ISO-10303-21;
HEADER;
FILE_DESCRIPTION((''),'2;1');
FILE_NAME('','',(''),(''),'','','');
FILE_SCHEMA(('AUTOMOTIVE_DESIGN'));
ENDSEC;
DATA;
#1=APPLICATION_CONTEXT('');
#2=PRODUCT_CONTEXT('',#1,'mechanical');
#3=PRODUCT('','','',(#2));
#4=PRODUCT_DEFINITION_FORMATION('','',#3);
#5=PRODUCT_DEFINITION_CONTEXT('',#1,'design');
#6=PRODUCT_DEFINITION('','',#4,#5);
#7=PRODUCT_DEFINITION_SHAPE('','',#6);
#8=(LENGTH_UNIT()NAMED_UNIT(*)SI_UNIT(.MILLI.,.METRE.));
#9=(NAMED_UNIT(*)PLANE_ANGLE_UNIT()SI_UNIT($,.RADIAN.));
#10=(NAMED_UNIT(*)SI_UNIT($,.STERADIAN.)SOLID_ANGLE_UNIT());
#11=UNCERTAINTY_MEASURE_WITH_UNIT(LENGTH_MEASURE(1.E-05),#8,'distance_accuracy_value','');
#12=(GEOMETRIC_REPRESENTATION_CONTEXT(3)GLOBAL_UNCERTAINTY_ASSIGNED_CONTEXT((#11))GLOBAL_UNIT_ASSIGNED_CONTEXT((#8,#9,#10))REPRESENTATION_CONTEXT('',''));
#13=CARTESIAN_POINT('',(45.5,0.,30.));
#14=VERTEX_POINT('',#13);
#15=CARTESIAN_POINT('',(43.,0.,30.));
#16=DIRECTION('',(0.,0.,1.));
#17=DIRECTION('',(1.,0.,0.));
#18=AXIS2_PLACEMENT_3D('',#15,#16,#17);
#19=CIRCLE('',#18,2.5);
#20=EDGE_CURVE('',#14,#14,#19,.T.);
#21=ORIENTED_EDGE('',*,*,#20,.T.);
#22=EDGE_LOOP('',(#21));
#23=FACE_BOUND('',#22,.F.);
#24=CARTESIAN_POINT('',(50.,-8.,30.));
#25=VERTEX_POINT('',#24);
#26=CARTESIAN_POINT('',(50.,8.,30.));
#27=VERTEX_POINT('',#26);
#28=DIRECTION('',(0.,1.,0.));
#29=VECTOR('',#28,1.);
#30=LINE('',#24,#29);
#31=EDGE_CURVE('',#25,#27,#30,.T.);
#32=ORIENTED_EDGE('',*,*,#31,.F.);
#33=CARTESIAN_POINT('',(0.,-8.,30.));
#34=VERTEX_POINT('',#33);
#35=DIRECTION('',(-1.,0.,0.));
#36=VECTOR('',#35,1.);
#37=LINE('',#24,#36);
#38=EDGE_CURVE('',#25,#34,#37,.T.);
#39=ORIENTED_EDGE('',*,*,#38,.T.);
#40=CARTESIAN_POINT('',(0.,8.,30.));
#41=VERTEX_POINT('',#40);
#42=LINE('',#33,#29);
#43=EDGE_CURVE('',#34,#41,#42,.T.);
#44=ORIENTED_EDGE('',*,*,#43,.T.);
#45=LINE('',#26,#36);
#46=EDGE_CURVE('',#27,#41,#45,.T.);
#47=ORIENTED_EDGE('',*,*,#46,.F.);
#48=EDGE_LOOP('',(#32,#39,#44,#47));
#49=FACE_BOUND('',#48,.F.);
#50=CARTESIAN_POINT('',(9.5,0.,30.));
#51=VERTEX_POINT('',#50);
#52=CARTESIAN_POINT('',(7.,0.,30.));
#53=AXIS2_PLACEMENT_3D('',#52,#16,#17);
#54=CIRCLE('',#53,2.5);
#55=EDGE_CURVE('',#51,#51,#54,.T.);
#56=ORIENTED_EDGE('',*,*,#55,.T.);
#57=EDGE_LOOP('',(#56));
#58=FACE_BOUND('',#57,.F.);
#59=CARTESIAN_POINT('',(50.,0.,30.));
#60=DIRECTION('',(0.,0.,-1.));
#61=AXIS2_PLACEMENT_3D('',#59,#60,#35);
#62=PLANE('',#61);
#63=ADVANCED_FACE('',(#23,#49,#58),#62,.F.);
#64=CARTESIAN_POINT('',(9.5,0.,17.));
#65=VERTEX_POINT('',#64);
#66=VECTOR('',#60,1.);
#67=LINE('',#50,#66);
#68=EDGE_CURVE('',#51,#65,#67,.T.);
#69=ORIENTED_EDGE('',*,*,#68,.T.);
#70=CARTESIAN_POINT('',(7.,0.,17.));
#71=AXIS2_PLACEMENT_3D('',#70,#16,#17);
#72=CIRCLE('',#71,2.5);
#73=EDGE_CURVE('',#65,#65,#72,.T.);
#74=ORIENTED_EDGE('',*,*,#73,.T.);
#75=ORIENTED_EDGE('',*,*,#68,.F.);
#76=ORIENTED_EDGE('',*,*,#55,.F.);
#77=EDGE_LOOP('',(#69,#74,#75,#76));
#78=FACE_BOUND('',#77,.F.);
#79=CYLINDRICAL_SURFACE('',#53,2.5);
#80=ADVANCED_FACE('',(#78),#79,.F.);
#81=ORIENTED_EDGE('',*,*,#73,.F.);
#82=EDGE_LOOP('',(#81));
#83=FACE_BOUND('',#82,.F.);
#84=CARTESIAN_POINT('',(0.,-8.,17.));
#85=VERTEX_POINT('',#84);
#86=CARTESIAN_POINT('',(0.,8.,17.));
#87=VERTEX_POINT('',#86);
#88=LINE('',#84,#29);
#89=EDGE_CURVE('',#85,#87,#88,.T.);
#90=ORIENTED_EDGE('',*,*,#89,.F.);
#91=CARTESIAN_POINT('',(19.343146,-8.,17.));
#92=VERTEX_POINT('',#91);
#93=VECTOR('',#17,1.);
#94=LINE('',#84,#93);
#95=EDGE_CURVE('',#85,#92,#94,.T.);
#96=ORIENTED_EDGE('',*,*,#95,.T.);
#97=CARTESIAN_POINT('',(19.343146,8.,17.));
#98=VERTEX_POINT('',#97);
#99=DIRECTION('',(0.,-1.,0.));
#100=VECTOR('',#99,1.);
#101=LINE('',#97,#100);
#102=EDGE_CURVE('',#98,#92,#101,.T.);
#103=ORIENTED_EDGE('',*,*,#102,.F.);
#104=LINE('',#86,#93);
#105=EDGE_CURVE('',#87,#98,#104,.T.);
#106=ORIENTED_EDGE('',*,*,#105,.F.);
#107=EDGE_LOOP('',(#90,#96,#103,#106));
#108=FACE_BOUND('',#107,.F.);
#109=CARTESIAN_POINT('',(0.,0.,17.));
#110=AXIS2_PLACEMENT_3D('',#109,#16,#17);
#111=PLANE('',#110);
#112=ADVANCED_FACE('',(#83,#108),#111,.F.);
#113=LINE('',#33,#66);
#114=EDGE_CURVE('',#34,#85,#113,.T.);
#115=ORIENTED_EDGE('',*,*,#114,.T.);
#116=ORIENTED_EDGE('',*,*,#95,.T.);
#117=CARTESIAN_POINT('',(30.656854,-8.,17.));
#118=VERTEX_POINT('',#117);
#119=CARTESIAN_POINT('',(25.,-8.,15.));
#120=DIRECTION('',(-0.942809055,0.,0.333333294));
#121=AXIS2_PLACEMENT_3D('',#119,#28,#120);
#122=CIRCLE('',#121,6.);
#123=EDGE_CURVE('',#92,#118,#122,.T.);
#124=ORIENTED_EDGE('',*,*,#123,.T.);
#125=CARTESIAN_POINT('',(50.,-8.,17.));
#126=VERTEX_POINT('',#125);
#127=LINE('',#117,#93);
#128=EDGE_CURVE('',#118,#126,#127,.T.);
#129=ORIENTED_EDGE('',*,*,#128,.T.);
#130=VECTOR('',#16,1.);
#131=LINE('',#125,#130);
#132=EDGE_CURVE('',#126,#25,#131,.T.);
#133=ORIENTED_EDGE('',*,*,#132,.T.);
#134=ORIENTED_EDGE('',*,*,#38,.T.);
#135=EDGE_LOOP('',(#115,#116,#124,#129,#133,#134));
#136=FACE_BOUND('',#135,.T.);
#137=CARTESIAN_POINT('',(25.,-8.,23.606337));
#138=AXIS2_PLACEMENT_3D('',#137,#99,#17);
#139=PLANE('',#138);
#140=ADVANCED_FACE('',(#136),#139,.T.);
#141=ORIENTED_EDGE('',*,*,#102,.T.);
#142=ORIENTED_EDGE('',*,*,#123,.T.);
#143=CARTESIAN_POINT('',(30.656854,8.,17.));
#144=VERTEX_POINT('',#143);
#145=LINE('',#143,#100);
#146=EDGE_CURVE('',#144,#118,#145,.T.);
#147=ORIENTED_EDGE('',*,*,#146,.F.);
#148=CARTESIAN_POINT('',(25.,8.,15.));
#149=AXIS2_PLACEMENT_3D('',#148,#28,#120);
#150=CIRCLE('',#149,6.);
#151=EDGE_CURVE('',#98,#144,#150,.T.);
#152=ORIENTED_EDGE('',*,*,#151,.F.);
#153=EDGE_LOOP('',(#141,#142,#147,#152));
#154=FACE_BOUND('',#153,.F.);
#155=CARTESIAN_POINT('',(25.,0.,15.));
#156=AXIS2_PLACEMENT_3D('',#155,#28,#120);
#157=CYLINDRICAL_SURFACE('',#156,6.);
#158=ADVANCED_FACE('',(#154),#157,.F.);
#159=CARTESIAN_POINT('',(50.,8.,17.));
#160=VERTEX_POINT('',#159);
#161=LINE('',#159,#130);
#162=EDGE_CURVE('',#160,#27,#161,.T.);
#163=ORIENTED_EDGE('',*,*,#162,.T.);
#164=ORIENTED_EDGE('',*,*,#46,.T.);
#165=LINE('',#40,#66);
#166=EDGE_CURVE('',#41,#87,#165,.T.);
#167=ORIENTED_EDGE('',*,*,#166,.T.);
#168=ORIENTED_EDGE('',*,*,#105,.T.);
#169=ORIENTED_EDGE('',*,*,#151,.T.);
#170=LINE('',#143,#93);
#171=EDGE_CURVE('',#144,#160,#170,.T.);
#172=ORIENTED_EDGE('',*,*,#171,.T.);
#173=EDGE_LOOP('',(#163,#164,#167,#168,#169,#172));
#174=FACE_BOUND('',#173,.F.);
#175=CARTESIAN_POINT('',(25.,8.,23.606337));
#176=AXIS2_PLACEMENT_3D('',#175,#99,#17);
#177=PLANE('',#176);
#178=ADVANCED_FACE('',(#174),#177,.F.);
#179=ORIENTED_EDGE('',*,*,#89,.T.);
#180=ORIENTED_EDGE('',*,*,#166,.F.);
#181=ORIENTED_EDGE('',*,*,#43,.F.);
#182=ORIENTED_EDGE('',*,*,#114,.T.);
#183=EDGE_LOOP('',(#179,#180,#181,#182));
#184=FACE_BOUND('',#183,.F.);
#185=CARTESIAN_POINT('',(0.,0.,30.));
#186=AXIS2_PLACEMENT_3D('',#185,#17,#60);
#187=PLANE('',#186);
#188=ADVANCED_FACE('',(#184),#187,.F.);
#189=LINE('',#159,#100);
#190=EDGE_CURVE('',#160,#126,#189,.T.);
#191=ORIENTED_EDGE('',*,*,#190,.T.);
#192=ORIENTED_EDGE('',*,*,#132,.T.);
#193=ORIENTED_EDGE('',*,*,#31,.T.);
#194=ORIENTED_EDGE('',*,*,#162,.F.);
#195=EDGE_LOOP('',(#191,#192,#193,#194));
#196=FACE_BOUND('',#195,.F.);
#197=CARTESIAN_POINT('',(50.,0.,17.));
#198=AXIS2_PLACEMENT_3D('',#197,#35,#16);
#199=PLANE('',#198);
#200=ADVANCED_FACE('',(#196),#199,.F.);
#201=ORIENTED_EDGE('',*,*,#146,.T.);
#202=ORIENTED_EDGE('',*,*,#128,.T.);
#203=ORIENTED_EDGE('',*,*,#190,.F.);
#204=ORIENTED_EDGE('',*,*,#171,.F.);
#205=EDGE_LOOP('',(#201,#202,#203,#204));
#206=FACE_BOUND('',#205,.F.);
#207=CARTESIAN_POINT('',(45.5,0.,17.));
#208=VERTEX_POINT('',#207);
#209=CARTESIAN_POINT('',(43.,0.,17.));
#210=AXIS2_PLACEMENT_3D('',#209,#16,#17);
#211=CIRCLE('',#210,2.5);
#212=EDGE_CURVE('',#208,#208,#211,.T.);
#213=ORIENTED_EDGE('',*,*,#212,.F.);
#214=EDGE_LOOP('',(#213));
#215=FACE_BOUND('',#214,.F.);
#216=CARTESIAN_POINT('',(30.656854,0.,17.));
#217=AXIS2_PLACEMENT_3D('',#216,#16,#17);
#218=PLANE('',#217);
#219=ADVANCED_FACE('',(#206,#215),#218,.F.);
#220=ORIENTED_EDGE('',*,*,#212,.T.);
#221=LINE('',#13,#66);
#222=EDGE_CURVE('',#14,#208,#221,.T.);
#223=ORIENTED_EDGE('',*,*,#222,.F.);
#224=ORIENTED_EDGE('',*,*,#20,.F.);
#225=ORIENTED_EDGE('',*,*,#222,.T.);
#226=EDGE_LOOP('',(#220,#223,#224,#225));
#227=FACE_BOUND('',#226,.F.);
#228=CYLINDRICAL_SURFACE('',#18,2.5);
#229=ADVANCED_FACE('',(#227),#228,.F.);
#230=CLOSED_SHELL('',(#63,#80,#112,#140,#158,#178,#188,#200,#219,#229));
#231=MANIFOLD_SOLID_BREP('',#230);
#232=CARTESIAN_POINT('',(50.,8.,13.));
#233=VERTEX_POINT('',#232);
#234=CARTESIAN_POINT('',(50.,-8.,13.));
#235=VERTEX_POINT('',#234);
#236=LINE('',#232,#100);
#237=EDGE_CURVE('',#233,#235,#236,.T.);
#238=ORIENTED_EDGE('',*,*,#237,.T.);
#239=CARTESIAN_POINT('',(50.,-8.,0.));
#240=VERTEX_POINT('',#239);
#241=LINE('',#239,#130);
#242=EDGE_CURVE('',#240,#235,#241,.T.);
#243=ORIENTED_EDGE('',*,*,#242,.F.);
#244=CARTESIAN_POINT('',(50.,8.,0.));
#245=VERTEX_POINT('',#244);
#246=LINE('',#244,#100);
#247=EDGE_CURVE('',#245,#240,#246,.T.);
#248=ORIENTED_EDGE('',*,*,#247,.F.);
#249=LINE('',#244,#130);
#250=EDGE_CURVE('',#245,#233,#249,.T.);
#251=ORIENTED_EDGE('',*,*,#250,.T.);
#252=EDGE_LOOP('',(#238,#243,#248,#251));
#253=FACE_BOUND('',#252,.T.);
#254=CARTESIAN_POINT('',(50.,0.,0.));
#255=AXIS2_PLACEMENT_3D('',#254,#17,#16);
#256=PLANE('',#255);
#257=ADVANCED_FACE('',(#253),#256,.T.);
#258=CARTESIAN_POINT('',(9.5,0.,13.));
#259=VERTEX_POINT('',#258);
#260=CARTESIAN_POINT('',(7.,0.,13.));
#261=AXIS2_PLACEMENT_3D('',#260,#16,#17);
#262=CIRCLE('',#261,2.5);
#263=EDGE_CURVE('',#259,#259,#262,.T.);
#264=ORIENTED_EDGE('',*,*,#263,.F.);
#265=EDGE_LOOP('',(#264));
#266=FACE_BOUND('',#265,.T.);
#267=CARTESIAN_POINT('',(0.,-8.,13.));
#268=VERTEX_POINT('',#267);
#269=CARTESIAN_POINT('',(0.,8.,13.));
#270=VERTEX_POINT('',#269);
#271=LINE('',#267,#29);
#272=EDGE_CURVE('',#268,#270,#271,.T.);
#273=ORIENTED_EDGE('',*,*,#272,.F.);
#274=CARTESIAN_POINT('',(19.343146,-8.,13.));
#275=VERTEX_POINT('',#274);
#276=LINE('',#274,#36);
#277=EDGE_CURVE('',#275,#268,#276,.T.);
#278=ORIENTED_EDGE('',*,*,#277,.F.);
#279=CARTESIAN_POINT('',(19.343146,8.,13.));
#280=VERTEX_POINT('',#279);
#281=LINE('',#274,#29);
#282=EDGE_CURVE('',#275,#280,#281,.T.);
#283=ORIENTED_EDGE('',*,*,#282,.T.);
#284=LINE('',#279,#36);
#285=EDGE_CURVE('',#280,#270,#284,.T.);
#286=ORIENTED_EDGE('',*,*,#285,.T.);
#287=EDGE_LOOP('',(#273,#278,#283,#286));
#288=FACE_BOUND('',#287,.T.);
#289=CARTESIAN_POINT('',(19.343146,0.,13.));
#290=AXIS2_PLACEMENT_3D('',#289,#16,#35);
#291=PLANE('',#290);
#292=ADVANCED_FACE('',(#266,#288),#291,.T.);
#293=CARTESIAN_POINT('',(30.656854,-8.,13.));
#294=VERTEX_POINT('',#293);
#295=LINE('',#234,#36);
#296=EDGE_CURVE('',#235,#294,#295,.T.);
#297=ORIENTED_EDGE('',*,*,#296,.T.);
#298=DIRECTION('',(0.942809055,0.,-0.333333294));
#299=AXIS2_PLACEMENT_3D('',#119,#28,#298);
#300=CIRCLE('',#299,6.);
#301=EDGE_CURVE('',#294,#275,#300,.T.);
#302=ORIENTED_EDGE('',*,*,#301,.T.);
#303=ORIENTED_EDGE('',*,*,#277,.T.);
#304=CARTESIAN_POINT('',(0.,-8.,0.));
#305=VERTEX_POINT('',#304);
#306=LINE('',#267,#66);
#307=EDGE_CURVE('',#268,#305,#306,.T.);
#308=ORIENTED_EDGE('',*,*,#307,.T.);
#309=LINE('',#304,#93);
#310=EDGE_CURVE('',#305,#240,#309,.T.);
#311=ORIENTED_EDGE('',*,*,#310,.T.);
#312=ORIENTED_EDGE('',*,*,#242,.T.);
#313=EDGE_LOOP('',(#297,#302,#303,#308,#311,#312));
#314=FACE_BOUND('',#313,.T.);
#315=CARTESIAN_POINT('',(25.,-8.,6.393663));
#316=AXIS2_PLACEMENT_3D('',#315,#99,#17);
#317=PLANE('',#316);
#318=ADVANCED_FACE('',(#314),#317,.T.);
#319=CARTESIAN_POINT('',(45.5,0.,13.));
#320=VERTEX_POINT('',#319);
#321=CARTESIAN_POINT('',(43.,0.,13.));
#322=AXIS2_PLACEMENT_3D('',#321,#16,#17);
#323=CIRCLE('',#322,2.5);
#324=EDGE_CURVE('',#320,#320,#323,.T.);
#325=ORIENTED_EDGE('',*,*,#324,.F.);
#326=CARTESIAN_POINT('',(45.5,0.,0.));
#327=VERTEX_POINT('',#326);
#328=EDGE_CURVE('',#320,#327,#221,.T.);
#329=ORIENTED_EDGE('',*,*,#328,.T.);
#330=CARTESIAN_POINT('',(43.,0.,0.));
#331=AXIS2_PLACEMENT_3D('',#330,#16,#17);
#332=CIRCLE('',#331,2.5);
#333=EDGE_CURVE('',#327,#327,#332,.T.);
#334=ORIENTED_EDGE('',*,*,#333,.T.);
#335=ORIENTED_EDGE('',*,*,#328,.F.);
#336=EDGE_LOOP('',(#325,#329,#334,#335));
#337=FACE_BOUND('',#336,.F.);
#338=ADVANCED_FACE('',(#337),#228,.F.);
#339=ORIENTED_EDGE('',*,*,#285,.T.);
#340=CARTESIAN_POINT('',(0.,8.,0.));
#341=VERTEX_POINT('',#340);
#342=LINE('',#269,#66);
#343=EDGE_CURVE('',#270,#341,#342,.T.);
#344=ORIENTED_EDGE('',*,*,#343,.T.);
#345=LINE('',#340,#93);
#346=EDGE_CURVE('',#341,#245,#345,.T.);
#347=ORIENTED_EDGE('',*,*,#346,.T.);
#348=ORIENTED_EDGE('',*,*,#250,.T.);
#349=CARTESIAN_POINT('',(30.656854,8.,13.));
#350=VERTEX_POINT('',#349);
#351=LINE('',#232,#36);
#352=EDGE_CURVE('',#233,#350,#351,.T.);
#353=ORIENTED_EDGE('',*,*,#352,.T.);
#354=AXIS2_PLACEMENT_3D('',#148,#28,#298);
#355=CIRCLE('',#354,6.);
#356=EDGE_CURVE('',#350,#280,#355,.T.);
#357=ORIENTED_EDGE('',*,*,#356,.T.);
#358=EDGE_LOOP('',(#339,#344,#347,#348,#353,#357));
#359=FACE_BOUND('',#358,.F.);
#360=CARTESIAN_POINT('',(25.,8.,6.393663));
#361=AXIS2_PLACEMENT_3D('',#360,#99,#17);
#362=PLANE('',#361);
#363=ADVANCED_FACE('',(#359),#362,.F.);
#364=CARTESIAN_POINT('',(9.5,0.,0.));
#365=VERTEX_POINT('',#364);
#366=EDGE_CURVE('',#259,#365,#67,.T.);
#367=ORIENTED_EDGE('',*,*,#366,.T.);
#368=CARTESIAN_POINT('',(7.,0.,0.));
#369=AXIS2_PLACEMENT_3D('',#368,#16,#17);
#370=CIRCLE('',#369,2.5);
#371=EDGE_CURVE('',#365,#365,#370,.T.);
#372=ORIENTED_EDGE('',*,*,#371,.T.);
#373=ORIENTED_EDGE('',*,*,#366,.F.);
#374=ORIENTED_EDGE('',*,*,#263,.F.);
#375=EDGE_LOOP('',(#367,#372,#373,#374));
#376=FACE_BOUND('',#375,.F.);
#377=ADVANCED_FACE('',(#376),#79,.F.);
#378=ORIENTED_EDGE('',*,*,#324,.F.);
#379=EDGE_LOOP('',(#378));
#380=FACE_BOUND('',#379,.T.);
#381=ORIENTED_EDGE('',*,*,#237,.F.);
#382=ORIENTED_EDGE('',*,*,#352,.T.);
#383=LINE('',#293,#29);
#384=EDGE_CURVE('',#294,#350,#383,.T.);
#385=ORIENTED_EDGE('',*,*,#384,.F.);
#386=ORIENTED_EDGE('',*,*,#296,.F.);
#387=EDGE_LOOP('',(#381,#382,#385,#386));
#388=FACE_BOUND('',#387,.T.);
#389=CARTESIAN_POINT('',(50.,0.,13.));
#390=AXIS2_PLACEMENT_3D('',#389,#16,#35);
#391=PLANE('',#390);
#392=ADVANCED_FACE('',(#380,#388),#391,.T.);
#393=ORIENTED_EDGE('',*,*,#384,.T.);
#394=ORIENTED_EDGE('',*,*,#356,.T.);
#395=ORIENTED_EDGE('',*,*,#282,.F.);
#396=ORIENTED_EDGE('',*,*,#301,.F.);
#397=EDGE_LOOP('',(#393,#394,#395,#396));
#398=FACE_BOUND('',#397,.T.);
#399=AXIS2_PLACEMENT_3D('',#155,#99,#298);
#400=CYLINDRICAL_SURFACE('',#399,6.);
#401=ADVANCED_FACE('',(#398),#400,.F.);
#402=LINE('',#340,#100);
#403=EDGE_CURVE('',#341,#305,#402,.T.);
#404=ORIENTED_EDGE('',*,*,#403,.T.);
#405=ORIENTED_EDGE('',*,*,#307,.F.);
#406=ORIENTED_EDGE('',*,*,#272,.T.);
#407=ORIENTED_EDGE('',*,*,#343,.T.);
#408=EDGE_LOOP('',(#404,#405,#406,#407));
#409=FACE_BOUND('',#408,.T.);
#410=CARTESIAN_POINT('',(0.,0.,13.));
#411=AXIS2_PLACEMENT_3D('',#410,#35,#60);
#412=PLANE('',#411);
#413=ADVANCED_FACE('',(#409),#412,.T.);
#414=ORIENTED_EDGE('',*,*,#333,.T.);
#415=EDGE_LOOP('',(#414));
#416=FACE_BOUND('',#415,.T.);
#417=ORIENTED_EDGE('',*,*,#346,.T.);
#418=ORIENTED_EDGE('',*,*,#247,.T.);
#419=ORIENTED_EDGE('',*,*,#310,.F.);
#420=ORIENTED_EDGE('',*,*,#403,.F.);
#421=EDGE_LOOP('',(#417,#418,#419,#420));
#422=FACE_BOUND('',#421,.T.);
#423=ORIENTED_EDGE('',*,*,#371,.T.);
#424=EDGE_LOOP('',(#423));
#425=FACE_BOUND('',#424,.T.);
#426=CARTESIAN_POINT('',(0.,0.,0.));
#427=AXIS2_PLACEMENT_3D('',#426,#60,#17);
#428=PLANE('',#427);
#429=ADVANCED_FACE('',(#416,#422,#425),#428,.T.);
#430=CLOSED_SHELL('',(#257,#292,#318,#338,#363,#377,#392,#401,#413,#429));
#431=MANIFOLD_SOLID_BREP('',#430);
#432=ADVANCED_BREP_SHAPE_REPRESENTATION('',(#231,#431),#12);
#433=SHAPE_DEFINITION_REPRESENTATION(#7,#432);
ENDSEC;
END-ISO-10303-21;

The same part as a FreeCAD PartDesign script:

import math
import FreeCAD as App
import Part
import Sketcher

V = App.Vector

doc = App.newDocument("Part")
body = doc.addObject("PartDesign::Body", "Body")
body.AllowCompound = True

# Sketch on XZ plane
sketch1 = doc.addObject("Sketcher::SketchObject", "Sketch")
body.addObject(sketch1)
sketch1.AttachmentSupport = (doc.XZ_Plane, [""])
sketch1.MapMode = "FlatFace"
sketch1.addGeometry([
    Part.LineSegment(V(0, 17, 0), V(19, 17, 0)),  # 0
    Part.ArcOfCircle(Part.Circle(V(25, 15, 0), V(0, 0, 1), 6), math.radians(19), math.radians(161)),  # 1
    Part.LineSegment(V(31, 17, 0), V(50, 17, 0)),  # 2
    Part.LineSegment(V(50, 17, 0), V(50, 30, 0)),  # 3
    Part.LineSegment(V(50, 30, 0), V(0, 30, 0)),  # 4
    Part.LineSegment(V(0, 30, 0), V(0, 17, 0)),  # 5
    Part.LineSegment(V(0, 13, 0), V(0, 0, 0)),  # 6
    Part.LineSegment(V(0, 0, 0), V(50, 0, 0)),  # 7
    Part.LineSegment(V(50, 0, 0), V(50, 13, 0)),  # 8
    Part.LineSegment(V(50, 13, 0), V(31, 13, 0)),  # 9
    Part.ArcOfCircle(Part.Circle(V(25, 15, 0), V(0, 0, 1), 6), math.radians(-161), math.radians(-19)),  # 10
    Part.LineSegment(V(19, 13, 0), V(0, 13, 0)),  # 11
], False)
sketch1.addConstraint([
    Sketcher.Constraint("Coincident", 0, 2, 1, 2),
    Sketcher.Constraint("Coincident", 1, 1, 2, 1),
    Sketcher.Constraint("Coincident", 2, 2, 3, 1),
    Sketcher.Constraint("Coincident", 3, 2, 4, 1),
    Sketcher.Constraint("Coincident", 4, 2, 5, 1),
    Sketcher.Constraint("Coincident", 5, 2, 0, 1),
    Sketcher.Constraint("Coincident", 6, 2, 7, 1),
    Sketcher.Constraint("Coincident", 7, 2, 8, 1),
    Sketcher.Constraint("Coincident", 8, 2, 9, 1),
    Sketcher.Constraint("Coincident", 9, 2, 10, 2),
    Sketcher.Constraint("Coincident", 10, 1, 11, 1),
    Sketcher.Constraint("Coincident", 11, 2, 6, 1),
    Sketcher.Constraint("Horizontal", 0),
    Sketcher.Constraint("Horizontal", 2),
    Sketcher.Constraint("Vertical", 3),
    Sketcher.Constraint("Horizontal", 4),
    Sketcher.Constraint("Vertical", 5),
    Sketcher.Constraint("Vertical", 6),
    Sketcher.Constraint("Horizontal", 7),
    Sketcher.Constraint("Vertical", 8),
    Sketcher.Constraint("Horizontal", 9),
    Sketcher.Constraint("Horizontal", 11),
    Sketcher.Constraint("Coincident", 6, 2, -1, 1),
    Sketcher.Constraint("Coincident", 10, 3, 1, 3),
    Sketcher.Constraint("Equal", 1, 10),
    Sketcher.Constraint("PointOnObject", 4, 2, -2),
    Sketcher.Constraint("Horizontal", 0, 2, 1, 1),
    Sketcher.Constraint("Horizontal", 9, 2, 10, 1),
    Sketcher.Constraint("Vertical", 3, 2, 7, 2),
    Sketcher.Constraint("Vertical", 1, 1, 9, 2),
    Sketcher.Constraint("Equal", 0, 2),
    Sketcher.Constraint("Equal", 5, 6),
    Sketcher.Constraint("Radius", 1, 6.0),
    Sketcher.Constraint("DistanceX", 4, 2, 4, 1, 50.0),
    Sketcher.Constraint("DistanceY", 3, 1, 3, 2, 13.0),
    Sketcher.Constraint("DistanceY", -1, 1, 1, 3, 15.0),
])
pad1 = doc.addObject("PartDesign::Pad", "Pad")
body.addObject(pad1)
pad1.Profile = sketch1
pad1.Length = 16
pad1.Midplane = True

# Sketch on XY plane
sketch2 = doc.addObject("Sketcher::SketchObject", "Sketch001")
body.addObject(sketch2)
sketch2.AttachmentSupport = (doc.XY_Plane, [""])
sketch2.MapMode = "FlatFace"
sketch2.AttachmentOffset = App.Placement(V(0, 0, 30), App.Rotation())
sketch2.addGeometry([
    Part.Circle(V(7, 0, 0), V(0, 0, 1), 2.5),
    Part.Circle(V(43, 0, 0), V(0, 0, 1), 2.5),
], False)
sketch2.addConstraint([
    Sketcher.Constraint("Equal", 0, 1),
    Sketcher.Constraint("PointOnObject", 0, 3, -1),
    Sketcher.Constraint("PointOnObject", 1, 3, -1),
    Sketcher.Constraint("Diameter", 0, 5.0),
    Sketcher.Constraint("DistanceX", -1, 1, 0, 3, 7.0),
    Sketcher.Constraint("DistanceX", -1, 1, 1, 3, 43.0),
])
pocket1 = doc.addObject("PartDesign::Pocket", "Pocket")
body.addObject(pocket1)
pocket1.Profile = sketch2
pocket1.Length = 50

doc.recompute()
